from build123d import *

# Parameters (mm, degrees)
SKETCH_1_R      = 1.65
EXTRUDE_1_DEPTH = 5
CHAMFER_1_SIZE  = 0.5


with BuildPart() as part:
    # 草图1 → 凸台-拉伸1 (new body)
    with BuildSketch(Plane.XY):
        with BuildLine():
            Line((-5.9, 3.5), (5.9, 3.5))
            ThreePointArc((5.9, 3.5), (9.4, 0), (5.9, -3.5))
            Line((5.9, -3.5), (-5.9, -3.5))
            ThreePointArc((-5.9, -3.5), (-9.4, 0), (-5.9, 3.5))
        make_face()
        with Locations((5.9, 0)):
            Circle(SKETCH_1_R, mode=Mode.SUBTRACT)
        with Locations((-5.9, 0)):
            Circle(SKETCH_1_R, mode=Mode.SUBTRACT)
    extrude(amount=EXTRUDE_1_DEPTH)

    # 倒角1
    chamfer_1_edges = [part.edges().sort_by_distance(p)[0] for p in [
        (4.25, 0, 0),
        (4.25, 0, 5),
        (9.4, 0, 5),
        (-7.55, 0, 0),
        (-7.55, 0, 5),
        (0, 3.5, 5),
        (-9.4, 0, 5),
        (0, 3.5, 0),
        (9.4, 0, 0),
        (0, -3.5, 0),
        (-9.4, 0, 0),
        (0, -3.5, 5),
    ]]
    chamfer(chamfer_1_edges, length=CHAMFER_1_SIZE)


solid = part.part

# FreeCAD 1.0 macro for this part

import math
import FreeCAD as App
import Part
import Sketcher
Q = App.Units.Quantity


def edges_at(feature, points):
    """Names of the edges that pass closest to the given points."""
    edges = feature.Shape.Edges
    near = lambda p: min(range(len(edges)), key=lambda i: edges[i].distToShape(Part.Vertex(*p))[0])
    return sorted({f"Edge{near(p) + 1}" for p in points})

doc = App.newDocument("Part")
params = doc.addObject("Spreadsheet::Sheet", "Params")
for row, (alias, value) in enumerate([
    ("sketch1_diameter", "3.3 mm"),
    ("sketch1_radius", "3.5 mm"),
    ("sketch1_width", "11.8 mm"),
    ("pad1_length", "5 mm"),
    ("chamfer_size", "0.5 mm"),
], start=1):
    params.set(f"A{row}", alias)
    params.set(f"B{row}", "=" + value)
    params.setAlias(f"B{row}", alias)

body = doc.addObject("PartDesign::Body", "Body")

# Sketch on XY plane
sketch1 = body.newObject("Sketcher::SketchObject", "Sketch")
sketch1.AttachmentSupport = (doc.getObject("XY_Plane"), [""])
sketch1.MapMode = "FlatFace"
sketch1.addGeometry([
    Part.LineSegment(App.Vector(5.9, 3.5, 0), App.Vector(-5.9, 3.5, 0)),  # 0
    Part.ArcOfCircle(Part.Circle(App.Vector(-5.9, 0, 0), App.Vector(0, 0, 1), 3.5), math.radians(90), math.radians(270)),  # 1
    Part.LineSegment(App.Vector(-5.9, -3.5, 0), App.Vector(5.9, -3.5, 0)),  # 2
    Part.ArcOfCircle(Part.Circle(App.Vector(5.9, 0, 0), App.Vector(0, 0, 1), 3.5), math.radians(-90), math.radians(90)),  # 3
    Part.Circle(App.Vector(5.9, 0, 0), App.Vector(0, 0, 1), 1.6),  # 4
    Part.Circle(App.Vector(-5.9, 0, 0), App.Vector(0, 0, 1), 1.6),  # 5
], False)
sketch1.addConstraint([
    Sketcher.Constraint("Tangent", 0, 2, 1, 1),
    Sketcher.Constraint("Tangent", 1, 2, 2, 1),
    Sketcher.Constraint("Tangent", 2, 2, 3, 1),
    Sketcher.Constraint("Tangent", 3, 2, 0, 1),
    Sketcher.Constraint("Horizontal", 0),
    Sketcher.Constraint("Horizontal", 2),
    Sketcher.Constraint("Coincident", 4, 3, 3, 3),
    Sketcher.Constraint("Coincident", 5, 3, 1, 3),
    Sketcher.Constraint("Equal", 4, 5),
    Sketcher.Constraint("Symmetric", 1, 3, 3, 3, -1, 1),
    Sketcher.Constraint("Diameter", 4, Q("3.3 mm")),
    Sketcher.Constraint("Radius", 1, Q("3.5 mm")),
    Sketcher.Constraint("DistanceX", 0, 2, 0, 1, Q("11.8 mm")),
])
sketch1.setExpression("Constraints[10]", "Params.sketch1_diameter")
sketch1.setExpression("Constraints[11]", "Params.sketch1_radius")
sketch1.setExpression("Constraints[12]", "Params.sketch1_width")
pad1 = body.newObject("PartDesign::Pad", "Pad")
pad1.Profile = sketch1
pad1.setExpression("Length", "Params.pad1_length")
doc.recompute()

chamfer = body.newObject("PartDesign::Chamfer", "Chamfer")
chamfer.Base = (pad1, edges_at(pad1, [
    (4.25, 0, 0),
    (4.25, 0, 5),
    (9.4, 0, 5),
    (-7.55, 0, 0),
    (-7.55, 0, 5),
    (0, 3.5, 5),
    (-9.4, 0, 5),
    (0, 3.5, 0),
    (9.4, 0, 0),
    (0, -3.5, 0),
    (-9.4, 0, 0),
    (0, -3.5, 5),
]))
chamfer.setExpression("Size", "Params.chamfer_size")

doc.recompute()
